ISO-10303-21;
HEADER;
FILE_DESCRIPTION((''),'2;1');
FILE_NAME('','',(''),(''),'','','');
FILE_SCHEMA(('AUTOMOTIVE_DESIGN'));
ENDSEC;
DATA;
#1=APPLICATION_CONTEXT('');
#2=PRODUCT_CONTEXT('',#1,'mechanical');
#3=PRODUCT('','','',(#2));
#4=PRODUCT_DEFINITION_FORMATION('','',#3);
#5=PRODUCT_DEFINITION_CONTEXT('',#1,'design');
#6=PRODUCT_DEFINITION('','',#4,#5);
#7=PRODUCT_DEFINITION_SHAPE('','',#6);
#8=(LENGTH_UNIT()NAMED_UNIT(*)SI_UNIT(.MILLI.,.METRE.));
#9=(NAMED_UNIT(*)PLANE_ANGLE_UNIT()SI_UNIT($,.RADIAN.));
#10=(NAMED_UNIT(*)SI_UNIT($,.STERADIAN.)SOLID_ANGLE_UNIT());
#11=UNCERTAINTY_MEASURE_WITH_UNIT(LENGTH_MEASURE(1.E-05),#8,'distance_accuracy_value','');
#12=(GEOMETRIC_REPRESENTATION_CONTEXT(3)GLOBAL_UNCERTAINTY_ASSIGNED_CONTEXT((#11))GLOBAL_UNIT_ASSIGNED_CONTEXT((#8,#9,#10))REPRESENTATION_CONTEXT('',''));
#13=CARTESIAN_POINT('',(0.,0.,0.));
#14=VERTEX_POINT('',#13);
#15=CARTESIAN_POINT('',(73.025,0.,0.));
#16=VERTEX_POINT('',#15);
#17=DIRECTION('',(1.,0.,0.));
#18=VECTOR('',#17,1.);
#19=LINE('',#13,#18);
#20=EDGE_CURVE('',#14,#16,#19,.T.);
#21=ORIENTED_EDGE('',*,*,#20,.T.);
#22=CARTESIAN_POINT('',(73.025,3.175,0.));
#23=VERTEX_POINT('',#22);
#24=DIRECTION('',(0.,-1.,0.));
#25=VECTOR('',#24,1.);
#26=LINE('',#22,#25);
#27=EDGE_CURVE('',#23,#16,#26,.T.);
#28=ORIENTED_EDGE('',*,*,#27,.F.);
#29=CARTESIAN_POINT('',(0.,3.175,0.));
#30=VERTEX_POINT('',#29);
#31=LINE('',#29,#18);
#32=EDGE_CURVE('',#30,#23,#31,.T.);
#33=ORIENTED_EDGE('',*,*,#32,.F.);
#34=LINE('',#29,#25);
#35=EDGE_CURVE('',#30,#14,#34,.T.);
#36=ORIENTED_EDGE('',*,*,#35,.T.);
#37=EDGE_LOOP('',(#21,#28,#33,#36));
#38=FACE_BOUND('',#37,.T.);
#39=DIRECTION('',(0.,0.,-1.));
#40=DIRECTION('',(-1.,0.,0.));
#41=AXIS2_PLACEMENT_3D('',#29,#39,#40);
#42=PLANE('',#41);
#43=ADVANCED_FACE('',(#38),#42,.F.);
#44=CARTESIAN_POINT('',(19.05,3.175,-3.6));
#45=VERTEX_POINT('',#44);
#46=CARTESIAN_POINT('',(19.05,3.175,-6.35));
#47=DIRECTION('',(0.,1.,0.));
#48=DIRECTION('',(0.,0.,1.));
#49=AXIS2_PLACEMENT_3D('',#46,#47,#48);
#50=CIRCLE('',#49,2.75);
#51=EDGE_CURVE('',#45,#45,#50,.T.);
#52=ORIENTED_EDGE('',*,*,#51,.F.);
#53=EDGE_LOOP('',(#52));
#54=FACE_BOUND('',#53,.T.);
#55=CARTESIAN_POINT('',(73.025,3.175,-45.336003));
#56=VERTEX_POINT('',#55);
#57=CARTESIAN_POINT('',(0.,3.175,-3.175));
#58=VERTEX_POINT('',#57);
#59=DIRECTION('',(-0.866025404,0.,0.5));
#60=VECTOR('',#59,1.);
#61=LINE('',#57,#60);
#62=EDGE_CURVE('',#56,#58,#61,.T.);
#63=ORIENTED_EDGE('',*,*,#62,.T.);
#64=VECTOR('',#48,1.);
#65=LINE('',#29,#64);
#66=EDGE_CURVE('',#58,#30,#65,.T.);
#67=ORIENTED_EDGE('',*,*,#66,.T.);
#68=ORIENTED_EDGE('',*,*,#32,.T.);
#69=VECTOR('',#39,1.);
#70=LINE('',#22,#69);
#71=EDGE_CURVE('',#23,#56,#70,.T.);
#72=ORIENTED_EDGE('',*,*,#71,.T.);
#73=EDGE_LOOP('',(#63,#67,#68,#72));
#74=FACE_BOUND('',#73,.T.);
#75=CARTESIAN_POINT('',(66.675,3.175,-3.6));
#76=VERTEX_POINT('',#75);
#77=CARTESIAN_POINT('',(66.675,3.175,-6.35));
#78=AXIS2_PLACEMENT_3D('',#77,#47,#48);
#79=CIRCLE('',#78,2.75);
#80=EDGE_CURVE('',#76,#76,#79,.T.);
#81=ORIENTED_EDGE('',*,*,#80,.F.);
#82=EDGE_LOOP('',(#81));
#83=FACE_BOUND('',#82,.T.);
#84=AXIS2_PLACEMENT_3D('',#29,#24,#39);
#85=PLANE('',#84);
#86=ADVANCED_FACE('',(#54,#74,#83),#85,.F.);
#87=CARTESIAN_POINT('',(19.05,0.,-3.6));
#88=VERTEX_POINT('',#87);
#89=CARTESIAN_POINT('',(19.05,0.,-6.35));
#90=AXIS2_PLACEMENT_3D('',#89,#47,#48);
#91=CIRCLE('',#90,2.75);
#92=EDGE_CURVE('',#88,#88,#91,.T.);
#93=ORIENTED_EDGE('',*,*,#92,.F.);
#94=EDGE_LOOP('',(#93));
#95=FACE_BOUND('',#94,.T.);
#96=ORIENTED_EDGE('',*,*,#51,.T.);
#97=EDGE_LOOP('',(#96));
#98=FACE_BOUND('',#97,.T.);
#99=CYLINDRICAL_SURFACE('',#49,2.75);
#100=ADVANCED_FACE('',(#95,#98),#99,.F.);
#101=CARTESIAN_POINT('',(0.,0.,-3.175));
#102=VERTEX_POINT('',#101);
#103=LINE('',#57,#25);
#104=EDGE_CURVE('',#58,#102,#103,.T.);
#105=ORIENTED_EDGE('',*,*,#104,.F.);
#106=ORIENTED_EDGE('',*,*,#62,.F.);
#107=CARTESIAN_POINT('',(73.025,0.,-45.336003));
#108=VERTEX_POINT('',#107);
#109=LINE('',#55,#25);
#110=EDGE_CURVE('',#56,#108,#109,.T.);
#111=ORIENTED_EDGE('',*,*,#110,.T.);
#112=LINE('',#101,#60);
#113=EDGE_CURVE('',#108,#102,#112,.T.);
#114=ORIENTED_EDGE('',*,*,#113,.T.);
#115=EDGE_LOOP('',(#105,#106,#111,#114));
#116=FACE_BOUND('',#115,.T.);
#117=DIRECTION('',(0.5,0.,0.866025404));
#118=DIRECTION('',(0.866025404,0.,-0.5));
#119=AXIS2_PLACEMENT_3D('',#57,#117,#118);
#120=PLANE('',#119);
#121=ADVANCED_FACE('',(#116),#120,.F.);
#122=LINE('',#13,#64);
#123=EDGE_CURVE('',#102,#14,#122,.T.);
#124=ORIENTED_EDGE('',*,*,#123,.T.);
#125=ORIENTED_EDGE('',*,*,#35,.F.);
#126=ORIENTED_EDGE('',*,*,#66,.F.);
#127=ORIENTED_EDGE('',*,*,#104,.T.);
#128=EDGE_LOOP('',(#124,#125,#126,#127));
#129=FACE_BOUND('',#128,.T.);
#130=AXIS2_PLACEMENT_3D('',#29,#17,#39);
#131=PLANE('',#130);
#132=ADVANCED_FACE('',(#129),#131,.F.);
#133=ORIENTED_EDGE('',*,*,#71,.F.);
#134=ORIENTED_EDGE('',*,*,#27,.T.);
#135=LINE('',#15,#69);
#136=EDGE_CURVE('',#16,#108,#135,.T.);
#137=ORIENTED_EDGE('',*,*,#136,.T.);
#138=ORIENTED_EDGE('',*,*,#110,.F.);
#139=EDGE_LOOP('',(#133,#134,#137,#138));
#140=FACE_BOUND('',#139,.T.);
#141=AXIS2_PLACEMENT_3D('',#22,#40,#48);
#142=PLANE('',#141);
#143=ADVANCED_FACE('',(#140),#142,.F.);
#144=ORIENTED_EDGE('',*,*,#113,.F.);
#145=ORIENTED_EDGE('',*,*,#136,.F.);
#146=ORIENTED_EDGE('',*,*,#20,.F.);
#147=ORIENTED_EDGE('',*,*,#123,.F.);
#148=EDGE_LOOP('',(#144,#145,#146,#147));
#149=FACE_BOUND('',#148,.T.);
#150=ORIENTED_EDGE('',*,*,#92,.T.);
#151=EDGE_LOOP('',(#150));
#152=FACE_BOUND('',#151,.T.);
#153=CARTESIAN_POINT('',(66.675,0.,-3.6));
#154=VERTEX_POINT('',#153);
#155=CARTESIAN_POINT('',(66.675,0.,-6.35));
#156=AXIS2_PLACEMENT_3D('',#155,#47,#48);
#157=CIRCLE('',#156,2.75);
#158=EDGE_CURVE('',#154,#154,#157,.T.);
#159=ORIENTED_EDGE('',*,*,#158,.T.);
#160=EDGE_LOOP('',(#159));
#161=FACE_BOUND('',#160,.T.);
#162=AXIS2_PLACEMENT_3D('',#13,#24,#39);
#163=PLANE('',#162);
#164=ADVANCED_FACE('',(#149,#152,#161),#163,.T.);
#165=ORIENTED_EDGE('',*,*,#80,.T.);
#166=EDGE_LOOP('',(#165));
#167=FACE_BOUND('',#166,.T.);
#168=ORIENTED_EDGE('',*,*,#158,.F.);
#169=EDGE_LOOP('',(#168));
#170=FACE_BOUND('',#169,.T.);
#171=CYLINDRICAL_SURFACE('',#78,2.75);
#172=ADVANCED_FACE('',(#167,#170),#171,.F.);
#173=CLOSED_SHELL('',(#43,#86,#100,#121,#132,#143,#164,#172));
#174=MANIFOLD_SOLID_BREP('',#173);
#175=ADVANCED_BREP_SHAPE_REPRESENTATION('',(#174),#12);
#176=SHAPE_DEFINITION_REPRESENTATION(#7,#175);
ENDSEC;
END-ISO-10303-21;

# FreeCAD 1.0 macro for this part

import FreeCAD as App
import Part
import Sketcher
Q = App.Units.Quantity


def add_polygon(sketch, points):
    """Adds a closed chain of lines whose ends are joined by coincident constraints."""
    first, n = sketch.GeometryCount, len(points)
    for a, b in zip(points, points[1:] + points[:1]):
        sketch.addGeometry(Part.LineSegment(App.Vector(*a, 0), App.Vector(*b, 0)), False)
    for i in range(n):
        sketch.addConstraint(Sketcher.Constraint("Coincident", first + i, 2, first + (i + 1) % n, 1))

doc = App.newDocument("Part")
body = doc.addObject("PartDesign::Body", "Body")

sketch1 = doc.addObject("Sketcher::SketchObject", "Sketch")
body.addObject(sketch1)
sketch1.AttachmentSupport = (doc.XZ_Plane, [""])
sketch1.MapMode = "FlatFace"
add_polygon(sketch1, [(0, 0), (73, 0), (73, -45.3), (0, -3.2)])
sketch1.addConstraint([
    Sketcher.Constraint("Horizontal", 0),
    Sketcher.Constraint("Vertical", 1),
    Sketcher.Constraint("Vertical", 3),
    Sketcher.Constraint("Coincident", 3, 2, -1, 1),
    Sketcher.Constraint("Angle", 2, Q("150 deg")),
    Sketcher.Constraint("DistanceX", 0, 1, 0, 2, Q("2.875 in")),
    Sketcher.Constraint("DistanceY", 3, 1, 3, 2, Q("0.125 in")),
])
pad1 = doc.addObject("PartDesign::Pad", "Pad")
body.addObject(pad1)
pad1.Profile = sketch1
pad1.Length = Q("0.125 in")
pad1.Reversed = True

sketch2 = doc.addObject("Sketcher::SketchObject", "Sketch001")
body.addObject(sketch2)
sketch2.AttachmentSupport = (doc.XZ_Plane, [""])
sketch2.MapMode = "FlatFace"
sketch2.AttachmentOffset = App.Placement(App.Vector(0, 0, -0.125 * 25.4), App.Rotation())
sketch2.addGeometry([
    Part.Circle(App.Vector(19.1, -6.3, 0), App.Vector(0, 0, 1), 2.8),
    Part.Circle(App.Vector(66.7, -6.3, 0), App.Vector(0, 0, 1), 2.8),
], False)
sketch2.addConstraint([
    Sketcher.Constraint("Equal", 0, 1),
    Sketcher.Constraint("Horizontal", 0, 3, 1, 3),
    Sketcher.Constraint("Diameter", 0, 5.5),
    Sketcher.Constraint("DistanceX", -1, 1, 0, 3, Q("0.75 in")),
    Sketcher.Constraint("DistanceY", 0, 3, -1, 1, Q("0.25 in")),
    Sketcher.Constraint("DistanceX", -1, 1, 1, 3, Q("2.625 in")),
])
doc.recompute()
hole = doc.addObject("PartDesign::Hole", "Hole")
body.addObject(hole)
hole.Profile = sketch2
hole.ThreadType = "None"
hole.Diameter = 5.5
hole.DepthType = "ThroughAll"
hole.Reversed = True

doc.recompute()
